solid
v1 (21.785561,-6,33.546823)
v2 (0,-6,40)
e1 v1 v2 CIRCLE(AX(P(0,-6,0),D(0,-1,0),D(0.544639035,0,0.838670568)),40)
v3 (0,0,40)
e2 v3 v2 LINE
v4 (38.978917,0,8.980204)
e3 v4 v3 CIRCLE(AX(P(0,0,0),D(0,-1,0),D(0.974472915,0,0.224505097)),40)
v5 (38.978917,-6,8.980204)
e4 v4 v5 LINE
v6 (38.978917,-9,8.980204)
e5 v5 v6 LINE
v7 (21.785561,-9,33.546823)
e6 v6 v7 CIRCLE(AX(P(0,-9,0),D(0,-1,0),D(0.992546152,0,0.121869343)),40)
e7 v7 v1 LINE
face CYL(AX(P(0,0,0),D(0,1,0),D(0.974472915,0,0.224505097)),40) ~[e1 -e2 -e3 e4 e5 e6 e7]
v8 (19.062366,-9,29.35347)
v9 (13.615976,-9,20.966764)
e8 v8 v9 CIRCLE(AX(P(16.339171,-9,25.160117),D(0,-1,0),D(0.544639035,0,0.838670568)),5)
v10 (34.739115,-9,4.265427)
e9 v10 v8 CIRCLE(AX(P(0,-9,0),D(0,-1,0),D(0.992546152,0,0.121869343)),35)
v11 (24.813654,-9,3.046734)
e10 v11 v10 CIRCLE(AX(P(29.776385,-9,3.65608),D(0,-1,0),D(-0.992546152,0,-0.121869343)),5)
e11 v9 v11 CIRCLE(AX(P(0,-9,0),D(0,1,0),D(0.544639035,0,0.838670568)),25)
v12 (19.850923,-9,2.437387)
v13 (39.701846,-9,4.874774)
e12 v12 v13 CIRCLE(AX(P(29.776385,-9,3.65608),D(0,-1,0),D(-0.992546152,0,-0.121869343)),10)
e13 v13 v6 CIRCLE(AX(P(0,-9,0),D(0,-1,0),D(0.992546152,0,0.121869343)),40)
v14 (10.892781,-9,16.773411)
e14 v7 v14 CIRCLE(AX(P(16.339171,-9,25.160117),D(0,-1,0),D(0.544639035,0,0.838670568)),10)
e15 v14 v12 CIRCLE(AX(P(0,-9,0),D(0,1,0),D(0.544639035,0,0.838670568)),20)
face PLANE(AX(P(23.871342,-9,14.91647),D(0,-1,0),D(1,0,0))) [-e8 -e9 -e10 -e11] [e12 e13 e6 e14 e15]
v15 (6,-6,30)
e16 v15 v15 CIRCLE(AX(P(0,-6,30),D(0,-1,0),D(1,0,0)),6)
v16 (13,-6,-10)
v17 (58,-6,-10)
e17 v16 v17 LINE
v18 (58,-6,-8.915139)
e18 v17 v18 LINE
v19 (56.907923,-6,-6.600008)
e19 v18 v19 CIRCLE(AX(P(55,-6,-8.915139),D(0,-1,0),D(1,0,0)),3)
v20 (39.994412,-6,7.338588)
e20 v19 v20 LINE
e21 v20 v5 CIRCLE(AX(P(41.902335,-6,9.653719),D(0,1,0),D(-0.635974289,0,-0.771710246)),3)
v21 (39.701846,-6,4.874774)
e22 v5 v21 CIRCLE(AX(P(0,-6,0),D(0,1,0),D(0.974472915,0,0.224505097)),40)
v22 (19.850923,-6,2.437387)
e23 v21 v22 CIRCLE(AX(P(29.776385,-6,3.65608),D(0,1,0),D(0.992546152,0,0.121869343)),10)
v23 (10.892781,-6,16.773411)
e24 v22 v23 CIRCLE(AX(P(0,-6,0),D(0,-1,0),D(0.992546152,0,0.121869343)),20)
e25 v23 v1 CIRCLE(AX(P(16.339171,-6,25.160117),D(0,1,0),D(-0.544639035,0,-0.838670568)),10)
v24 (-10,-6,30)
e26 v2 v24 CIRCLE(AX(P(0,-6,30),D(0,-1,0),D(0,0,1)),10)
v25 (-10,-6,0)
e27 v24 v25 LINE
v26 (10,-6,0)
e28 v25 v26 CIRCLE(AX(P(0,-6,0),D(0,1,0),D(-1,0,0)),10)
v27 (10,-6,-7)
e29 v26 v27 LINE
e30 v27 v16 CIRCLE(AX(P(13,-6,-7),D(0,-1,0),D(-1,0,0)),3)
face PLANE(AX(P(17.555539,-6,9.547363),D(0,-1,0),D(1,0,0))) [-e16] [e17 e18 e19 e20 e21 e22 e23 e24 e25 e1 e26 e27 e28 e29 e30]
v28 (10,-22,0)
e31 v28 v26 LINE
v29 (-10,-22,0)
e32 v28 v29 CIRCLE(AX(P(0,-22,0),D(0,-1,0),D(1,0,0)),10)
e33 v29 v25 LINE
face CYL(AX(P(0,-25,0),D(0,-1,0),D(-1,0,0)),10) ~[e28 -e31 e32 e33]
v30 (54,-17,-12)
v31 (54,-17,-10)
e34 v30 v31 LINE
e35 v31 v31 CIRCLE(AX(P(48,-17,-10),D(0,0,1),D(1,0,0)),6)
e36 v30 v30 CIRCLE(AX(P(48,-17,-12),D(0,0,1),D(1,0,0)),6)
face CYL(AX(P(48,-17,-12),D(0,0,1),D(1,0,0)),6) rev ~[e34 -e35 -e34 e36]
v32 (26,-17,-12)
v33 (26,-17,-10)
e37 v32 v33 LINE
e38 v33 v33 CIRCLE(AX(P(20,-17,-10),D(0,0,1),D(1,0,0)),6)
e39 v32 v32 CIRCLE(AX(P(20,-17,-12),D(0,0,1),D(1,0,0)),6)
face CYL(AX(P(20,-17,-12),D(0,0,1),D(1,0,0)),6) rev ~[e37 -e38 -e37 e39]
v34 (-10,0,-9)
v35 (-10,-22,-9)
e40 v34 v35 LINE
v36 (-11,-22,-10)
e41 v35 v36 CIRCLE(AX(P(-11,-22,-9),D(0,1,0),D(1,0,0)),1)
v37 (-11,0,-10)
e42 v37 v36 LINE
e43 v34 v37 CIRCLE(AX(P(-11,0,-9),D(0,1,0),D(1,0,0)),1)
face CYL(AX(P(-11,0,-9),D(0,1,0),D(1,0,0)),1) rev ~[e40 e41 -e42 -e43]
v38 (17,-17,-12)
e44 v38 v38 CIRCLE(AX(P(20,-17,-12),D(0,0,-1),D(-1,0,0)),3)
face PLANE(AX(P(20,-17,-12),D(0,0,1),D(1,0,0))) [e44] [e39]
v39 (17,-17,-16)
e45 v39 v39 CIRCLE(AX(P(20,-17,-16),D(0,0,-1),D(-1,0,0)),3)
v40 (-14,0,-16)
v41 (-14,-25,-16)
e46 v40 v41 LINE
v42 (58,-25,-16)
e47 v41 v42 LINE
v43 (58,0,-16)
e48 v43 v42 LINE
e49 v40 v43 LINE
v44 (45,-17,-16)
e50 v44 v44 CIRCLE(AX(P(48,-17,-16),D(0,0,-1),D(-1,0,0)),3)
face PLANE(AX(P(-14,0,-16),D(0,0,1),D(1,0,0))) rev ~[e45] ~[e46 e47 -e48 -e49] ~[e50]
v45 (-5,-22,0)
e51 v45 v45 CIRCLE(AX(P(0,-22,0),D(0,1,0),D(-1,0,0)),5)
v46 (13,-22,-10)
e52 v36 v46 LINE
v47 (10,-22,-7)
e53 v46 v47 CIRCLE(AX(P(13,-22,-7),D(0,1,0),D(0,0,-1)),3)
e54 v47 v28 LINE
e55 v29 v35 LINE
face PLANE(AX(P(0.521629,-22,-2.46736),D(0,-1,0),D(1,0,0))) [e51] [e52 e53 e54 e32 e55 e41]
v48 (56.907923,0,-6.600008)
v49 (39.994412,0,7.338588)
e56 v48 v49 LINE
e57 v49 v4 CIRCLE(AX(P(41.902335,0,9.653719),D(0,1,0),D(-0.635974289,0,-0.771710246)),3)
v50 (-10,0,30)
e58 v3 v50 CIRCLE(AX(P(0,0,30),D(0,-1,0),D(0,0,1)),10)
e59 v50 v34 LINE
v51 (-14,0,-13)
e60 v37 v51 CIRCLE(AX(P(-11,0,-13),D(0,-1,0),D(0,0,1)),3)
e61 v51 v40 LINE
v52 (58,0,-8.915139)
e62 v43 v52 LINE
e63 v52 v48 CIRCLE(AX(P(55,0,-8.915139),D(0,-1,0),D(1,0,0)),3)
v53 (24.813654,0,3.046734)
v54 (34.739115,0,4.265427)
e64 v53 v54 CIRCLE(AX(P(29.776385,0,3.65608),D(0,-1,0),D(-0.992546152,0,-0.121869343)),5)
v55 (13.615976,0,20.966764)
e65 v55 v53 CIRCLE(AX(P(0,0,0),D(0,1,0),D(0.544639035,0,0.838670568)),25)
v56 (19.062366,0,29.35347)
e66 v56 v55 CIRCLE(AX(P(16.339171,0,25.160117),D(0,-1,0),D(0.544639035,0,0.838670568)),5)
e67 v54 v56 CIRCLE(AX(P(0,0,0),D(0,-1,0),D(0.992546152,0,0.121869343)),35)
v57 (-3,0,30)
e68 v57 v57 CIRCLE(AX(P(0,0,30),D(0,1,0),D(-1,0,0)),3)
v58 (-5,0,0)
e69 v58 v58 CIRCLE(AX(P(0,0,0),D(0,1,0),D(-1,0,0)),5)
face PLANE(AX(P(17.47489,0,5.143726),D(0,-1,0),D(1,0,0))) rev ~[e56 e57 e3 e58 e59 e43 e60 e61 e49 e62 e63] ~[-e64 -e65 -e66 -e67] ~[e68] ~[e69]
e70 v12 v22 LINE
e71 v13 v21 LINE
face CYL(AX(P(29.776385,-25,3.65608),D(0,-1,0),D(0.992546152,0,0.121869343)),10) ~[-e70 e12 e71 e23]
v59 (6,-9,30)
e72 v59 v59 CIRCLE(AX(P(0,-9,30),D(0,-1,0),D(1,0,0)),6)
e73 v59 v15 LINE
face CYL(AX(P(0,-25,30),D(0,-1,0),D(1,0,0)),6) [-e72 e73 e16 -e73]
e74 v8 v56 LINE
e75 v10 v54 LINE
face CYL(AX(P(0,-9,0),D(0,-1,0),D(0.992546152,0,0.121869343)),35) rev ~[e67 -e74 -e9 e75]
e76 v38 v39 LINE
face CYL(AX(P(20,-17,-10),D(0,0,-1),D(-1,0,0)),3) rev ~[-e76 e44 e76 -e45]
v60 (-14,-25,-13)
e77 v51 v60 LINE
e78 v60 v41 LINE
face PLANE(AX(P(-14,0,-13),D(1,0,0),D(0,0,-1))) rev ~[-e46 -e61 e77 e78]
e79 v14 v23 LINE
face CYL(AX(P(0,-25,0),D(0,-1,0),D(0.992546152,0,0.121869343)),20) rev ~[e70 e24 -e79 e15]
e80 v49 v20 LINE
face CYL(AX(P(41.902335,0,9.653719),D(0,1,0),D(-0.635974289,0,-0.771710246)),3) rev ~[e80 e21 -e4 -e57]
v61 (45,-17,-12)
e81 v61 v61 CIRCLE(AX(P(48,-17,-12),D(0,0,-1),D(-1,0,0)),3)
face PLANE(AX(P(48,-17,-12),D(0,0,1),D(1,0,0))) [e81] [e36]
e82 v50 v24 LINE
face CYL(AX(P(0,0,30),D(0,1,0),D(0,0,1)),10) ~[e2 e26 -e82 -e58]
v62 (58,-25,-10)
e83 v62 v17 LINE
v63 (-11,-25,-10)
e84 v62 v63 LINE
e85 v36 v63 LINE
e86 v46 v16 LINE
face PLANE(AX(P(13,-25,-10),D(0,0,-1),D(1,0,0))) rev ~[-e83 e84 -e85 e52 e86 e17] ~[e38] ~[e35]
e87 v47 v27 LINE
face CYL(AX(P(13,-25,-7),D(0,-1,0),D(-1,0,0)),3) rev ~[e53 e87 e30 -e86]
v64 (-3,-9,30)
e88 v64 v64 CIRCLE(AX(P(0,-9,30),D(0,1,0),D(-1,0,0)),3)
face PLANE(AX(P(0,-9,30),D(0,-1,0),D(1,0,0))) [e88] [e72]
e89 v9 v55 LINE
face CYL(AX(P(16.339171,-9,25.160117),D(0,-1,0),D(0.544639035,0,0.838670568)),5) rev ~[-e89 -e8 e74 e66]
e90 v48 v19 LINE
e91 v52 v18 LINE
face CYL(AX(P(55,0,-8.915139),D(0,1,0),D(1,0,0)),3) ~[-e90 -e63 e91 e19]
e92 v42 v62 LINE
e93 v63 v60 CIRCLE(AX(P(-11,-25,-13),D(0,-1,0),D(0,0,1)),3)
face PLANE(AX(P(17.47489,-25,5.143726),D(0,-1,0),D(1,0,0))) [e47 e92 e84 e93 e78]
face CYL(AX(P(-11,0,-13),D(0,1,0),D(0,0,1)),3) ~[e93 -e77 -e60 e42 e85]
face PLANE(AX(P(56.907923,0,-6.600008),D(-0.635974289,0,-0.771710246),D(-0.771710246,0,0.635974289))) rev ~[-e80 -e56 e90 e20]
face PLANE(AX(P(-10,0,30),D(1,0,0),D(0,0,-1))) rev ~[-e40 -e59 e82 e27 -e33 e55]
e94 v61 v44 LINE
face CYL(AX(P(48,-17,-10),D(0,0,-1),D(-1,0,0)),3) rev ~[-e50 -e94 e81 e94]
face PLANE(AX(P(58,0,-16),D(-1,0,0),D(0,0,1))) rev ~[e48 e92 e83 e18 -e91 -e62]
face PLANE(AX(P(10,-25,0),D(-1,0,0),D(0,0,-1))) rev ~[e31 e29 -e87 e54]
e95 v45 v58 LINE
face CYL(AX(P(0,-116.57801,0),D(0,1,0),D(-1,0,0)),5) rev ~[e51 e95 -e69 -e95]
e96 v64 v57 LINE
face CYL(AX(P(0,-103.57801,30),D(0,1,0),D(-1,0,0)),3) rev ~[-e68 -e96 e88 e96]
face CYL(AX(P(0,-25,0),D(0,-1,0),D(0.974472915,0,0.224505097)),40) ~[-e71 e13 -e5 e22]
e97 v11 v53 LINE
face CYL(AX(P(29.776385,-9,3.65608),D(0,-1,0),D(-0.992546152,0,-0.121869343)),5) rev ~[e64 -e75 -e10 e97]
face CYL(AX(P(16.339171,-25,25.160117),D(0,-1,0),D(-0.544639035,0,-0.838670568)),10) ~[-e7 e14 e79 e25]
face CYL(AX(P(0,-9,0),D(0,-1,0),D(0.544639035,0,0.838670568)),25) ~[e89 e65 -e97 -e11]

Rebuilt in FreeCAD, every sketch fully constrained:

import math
import FreeCAD as App
import Part
import Sketcher

V = App.Vector
Q = App.Units.Quantity

doc = App.newDocument("Part")
body = doc.addObject("PartDesign::Body", "Body")

# Sketch on XZ plane
sketch1 = body.newObject("Sketcher::SketchObject", "Sketch")
sketch1.AttachmentSupport = (doc.getObject("XZ_Plane"), [""])
sketch1.MapMode = "FlatFace"
sketch1.addGeometry([
    Part.LineSegment(V(-14, -16, 0), V(58, -16, 0)),  # 0
    Part.LineSegment(V(58, -16, 0), V(58, -8.9, 0)),  # 1
    Part.ArcOfCircle(Part.Circle(V(55, -8.9, 0), V(0, 0, 1), 3), math.radians(0), math.radians(51)),  # 2
    Part.LineSegment(V(56.9, -6.6, 0), V(40, 7.3, 0)),  # 3
    Part.ArcOfCircle(Part.Circle(V(41.9, 9.7, 0), V(0, 0, 1), 3), math.radians(-167), math.radians(-129)),  # 4
    Part.ArcOfCircle(Part.Circle(V(0, 0, 0), V(0, 0, 1), 40), math.radians(13), math.radians(90)),  # 5
    Part.ArcOfCircle(Part.Circle(V(0, 30, 0), V(0, 0, 1), 10), math.radians(90), math.radians(180)),  # 6
    Part.LineSegment(V(-10, 30, 0), V(-10, -9, 0)),  # 7
    Part.ArcOfCircle(Part.Circle(V(-11, -9, 0), V(0, 0, 1), 1), math.radians(-90), math.radians(0)),  # 8
    Part.ArcOfCircle(Part.Circle(V(-11, -13, 0), V(0, 0, 1), 3), math.radians(90), math.radians(180)),  # 9
    Part.LineSegment(V(-14, -13, 0), V(-14, -16, 0)),  # 10
], False)
sketch1.addConstraint([
    Sketcher.Constraint("Coincident", 0, 2, 1, 1),
    Sketcher.Constraint("Tangent", 1, 2, 2, 1),
    Sketcher.Constraint("Tangent", 2, 2, 3, 1),
    Sketcher.Constraint("Tangent", 3, 2, 4, 2),
    Sketcher.Constraint("Tangent", 4, 1, 5, 1),
    Sketcher.Constraint("Tangent", 5, 2, 6, 1),
    Sketcher.Constraint("Tangent", 6, 2, 7, 1),
    Sketcher.Constraint("Tangent", 7, 2, 8, 2),
    Sketcher.Constraint("Tangent", 8, 1, 9, 1),
    Sketcher.Constraint("Tangent", 9, 2, 10, 1),
    Sketcher.Constraint("Coincident", 10, 2, 0, 1),
    Sketcher.Constraint("Horizontal", 0),
    Sketcher.Constraint("Vertical", 1),
    Sketcher.Constraint("Vertical", 7),
    Sketcher.Constraint("Vertical", 10),
    Sketcher.Constraint("Coincident", 5, 3, -1, 1),
    Sketcher.Constraint("Equal", 2, 4),
    Sketcher.Constraint("Equal", 4, 9),
    Sketcher.Constraint("PointOnObject", 6, 3, -2),
    Sketcher.Constraint("Vertical", 8, 3, 9, 3),
    Sketcher.Constraint("Radius", 2, Q("3 mm")),
    Sketcher.Constraint("Radius", 5, Q("40 mm")),
    Sketcher.Constraint("Radius", 6, Q("10 mm")),
    Sketcher.Constraint("Radius", 8, Q("1 mm")),
    Sketcher.Constraint("DistanceX", 0, 1, 0, 2, Q("72 mm")),
    Sketcher.Constraint("DistanceY", 7, 2, 7, 1, Q("39 mm")),
    Sketcher.Constraint("DistanceY", 10, 2, 10, 1, Q("3 mm")),
    Sketcher.Constraint("DistanceY", 1, 1, 1, 2, Q("7.084861 mm")),
    Sketcher.Constraint("Distance", 3, Q("21.916918 mm")),
])
pad1 = body.newObject("PartDesign::Pad", "Pad")
pad1.Profile = sketch1
pad1.Length = 25

# Sketch on XZ plane
sketch2 = body.newObject("Sketcher::SketchObject", "Sketch001")
sketch2.AttachmentSupport = (doc.getObject("XZ_Plane"), [""])
sketch2.MapMode = "FlatFace"
sketch2.AttachmentOffset = App.Placement(V(0, 0, 25), App.Rotation())
sketch2.addGeometry([
    Part.ArcOfCircle(Part.Circle(V(0, 0, 0), V(0, 0, 1), 10), math.radians(0), math.radians(180)),  # 0
    Part.LineSegment(V(10, 0, 0), V(10, -7, 0)),  # 1
    Part.ArcOfCircle(Part.Circle(V(13, -7, 0), V(0, 0, 1), 3), math.radians(180), math.radians(270)),  # 2
    Part.LineSegment(V(13, -10, 0), V(58, -10, 0)),  # 3
    Part.LineSegment(V(58, -10, 0), V(58, -8.9, 0)),  # 4
    Part.ArcOfCircle(Part.Circle(V(55, -8.9, 0), V(0, 0, 1), 3), math.radians(0), math.radians(51)),  # 5
    Part.LineSegment(V(56.9, -6.6, 0), V(40, 7.3, 0)),  # 6
    Part.ArcOfCircle(Part.Circle(V(41.9, 9.7, 0), V(0, 0, 1), 3), math.radians(-167), math.radians(-129)),  # 7
    Part.ArcOfCircle(Part.Circle(V(0, 0, 0), V(0, 0, 1), 40), math.radians(7), math.radians(12.97)),  # 8
    Part.ArcOfCircle(Part.Circle(V(29.8, 3.7, 0), V(0, 0, 1), 10), math.radians(-173), math.radians(7)),  # 9
    Part.ArcOfCircle(Part.Circle(V(0, 0, 0), V(0, 0, 1), 20), math.radians(7), math.radians(57)),  # 10
    Part.ArcOfCircle(Part.Circle(V(16.3, 25.2, 0), V(0, 0, 1), 10), math.radians(57), math.radians(237)),  # 11
    Part.ArcOfCircle(Part.Circle(V(0, 0, 0), V(0, 0, 1), 40), math.radians(57), math.radians(90)),  # 12
    Part.ArcOfCircle(Part.Circle(V(0, 30, 0), V(0, 0, 1), 10), math.radians(90), math.radians(180)),  # 13
    Part.LineSegment(V(-10, 30, 0), V(-10, 0, 0)),  # 14
    Part.Circle(V(0, 30, 0), V(0, 0, 1), 6),  # 15
], False)
sketch2.addConstraint([
    Sketcher.Constraint("Tangent", 0, 1, 1, 1),
    Sketcher.Constraint("Tangent", 1, 2, 2, 1),
    Sketcher.Constraint("Tangent", 2, 2, 3, 1),
    Sketcher.Constraint("Coincident", 3, 2, 4, 1),
    Sketcher.Constraint("Tangent", 4, 2, 5, 1),
    Sketcher.Constraint("Tangent", 5, 2, 6, 1),
    Sketcher.Constraint("Tangent", 6, 2, 7, 2),
    Sketcher.Constraint("Tangent", 7, 1, 8, 2),
    Sketcher.Constraint("Tangent", 8, 1, 9, 2),
    Sketcher.Constraint("Tangent", 9, 1, 10, 1),
    Sketcher.Constraint("Tangent", 10, 2, 11, 2),
    Sketcher.Constraint("Tangent", 11, 1, 12, 1),
    Sketcher.Constraint("Tangent", 12, 2, 13, 1),
    Sketcher.Constraint("Tangent", 13, 2, 14, 1),
    Sketcher.Constraint("Tangent", 14, 2, 0, 2),
    Sketcher.Constraint("Vertical", 1),
    Sketcher.Constraint("Horizontal", 3),
    Sketcher.Constraint("Vertical", 4),
    Sketcher.Constraint("Vertical", 14),
    Sketcher.Constraint("Coincident", 0, 3, -1, 1),
    Sketcher.Constraint("Coincident", 8, 3, -1, 1),
    Sketcher.Constraint("Coincident", 10, 3, -1, 1),
    Sketcher.Constraint("Coincident", 12, 3, -1, 1),
    Sketcher.Constraint("Coincident", 15, 3, 13, 3),
    Sketcher.Constraint("Equal", 2, 5),
    Sketcher.Constraint("Equal", 5, 7),
    Sketcher.Constraint("Equal", 0, 9),
    Sketcher.Constraint("Equal", 9, 11),
    Sketcher.Constraint("Equal", 11, 13),
    Sketcher.Constraint("Diameter", 15, Q("12 mm")),
    Sketcher.Constraint("Radius", 0, Q("10 mm")),
    Sketcher.Constraint("Radius", 2, Q("3 mm")),
    Sketcher.Constraint("Radius", 8, Q("40 mm")),
    Sketcher.Constraint("DistanceX", 3, 1, 3, 2, Q("45 mm")),
    Sketcher.Constraint("DistanceY", 1, 2, 1, 1, Q("7 mm")),
    Sketcher.Constraint("DistanceY", 4, 1, 4, 2, Q("1.084861 mm")),
    Sketcher.Constraint("Distance", 6, Q("21.916918 mm")),
    Sketcher.Constraint("DistanceY", -1, 1, 9, 3, Q("3.65608 mm")),
    Sketcher.Constraint("DistanceX", -1, 1, 11, 3, Q("16.339171 mm")),
])
pocket1 = body.newObject("PartDesign::Pocket", "Pocket")
pocket1.Profile = sketch2
pocket1.Length = 19

# Sketch on XZ plane
sketch3 = body.newObject("Sketcher::SketchObject", "Sketch002")
sketch3.AttachmentSupport = (doc.getObject("XZ_Plane"), [""])
sketch3.MapMode = "FlatFace"
sketch3.AttachmentOffset = App.Placement(V(0, 0, 25), App.Rotation())
sketch3.addGeometry([
    Part.Circle(V(0, 30, 0), V(0, 0, 1), 6),  # 0
    Part.ArcOfCircle(Part.Circle(V(0, 0, 0), V(0, 0, 1), 40), math.radians(7), math.radians(57)),  # 1
    Part.ArcOfCircle(Part.Circle(V(16, 25, 0), V(0, 0, 1), 10), math.radians(57), math.radians(237)),  # 2
    Part.ArcOfCircle(Part.Circle(V(0, 0, 0), V(0, 0, 1), 20), math.radians(7), math.radians(57)),  # 3
    Part.ArcOfCircle(Part.Circle(V(30, 4, 0), V(0, 0, 1), 10), math.radians(-173), math.radians(7)),  # 4
], False)
sketch3.addConstraint([
    Sketcher.Constraint("Tangent", 1, 2, 2, 1),
    Sketcher.Constraint("Tangent", 2, 2, 3, 2),
    Sketcher.Constraint("Tangent", 3, 1, 4, 1),
    Sketcher.Constraint("Tangent", 4, 2, 1, 1),
    Sketcher.Constraint("Coincident", 1, 3, -1, 1),
    Sketcher.Constraint("Coincident", 3, 3, -1, 1),
    Sketcher.Constraint("PointOnObject", 0, 3, -2),
    Sketcher.Constraint("Diameter", 0, Q("12 mm")),
    Sketcher.Constraint("Radius", 1, Q("40 mm")),
    Sketcher.Constraint("Radius", 2, Q("10 mm")),
    Sketcher.Constraint("DistanceY", -1, 1, 0, 3, Q("30 mm")),
    Sketcher.Constraint("DistanceX", -1, 1, 2, 3, Q("16.339171 mm")),
    Sketcher.Constraint("DistanceY", -1, 1, 4, 3, Q("3.65608 mm")),
])
pocket2 = body.newObject("PartDesign::Pocket", "Pocket001")
pocket2.Profile = sketch3
pocket2.Length = 16

# Sketch on XZ plane
sketch4 = body.newObject("Sketcher::SketchObject", "Sketch003")
sketch4.AttachmentSupport = (doc.getObject("XZ_Plane"), [""])
sketch4.MapMode = "FlatFace"
sketch4.AttachmentOffset = App.Placement(V(0, 0, 25), App.Rotation())
sketch4.addGeometry([
    Part.LineSegment(V(-11, -10, 0), V(13, -10, 0)),  # 0
    Part.ArcOfCircle(Part.Circle(V(13, -7, 0), V(0, 0, 1), 3), math.radians(180), math.radians(270)),  # 1
    Part.LineSegment(V(10, -7, 0), V(10, 0, 0)),  # 2
    Part.ArcOfCircle(Part.Circle(V(0, 0, 0), V(0, 0, 1), 10), math.radians(0), math.radians(180)),  # 3
    Part.LineSegment(V(-10, 0, 0), V(-10, -9, 0)),  # 4
    Part.ArcOfCircle(Part.Circle(V(-11, -9, 0), V(0, 0, 1), 1), math.radians(-90), math.radians(0)),  # 5
], False)
sketch4.addConstraint([
    Sketcher.Constraint("Tangent", 0, 2, 1, 2),
    Sketcher.Constraint("Tangent", 1, 1, 2, 1),
    Sketcher.Constraint("Tangent", 2, 2, 3, 1),
    Sketcher.Constraint("Tangent", 3, 2, 4, 1),
    Sketcher.Constraint("Tangent", 4, 2, 5, 2),
    Sketcher.Constraint("Tangent", 5, 1, 0, 1),
    Sketcher.Constraint("Horizontal", 0),
    Sketcher.Constraint("Vertical", 2),
    Sketcher.Constraint("Vertical", 4),
    Sketcher.Constraint("Coincident", 3, 3, -1, 1),
    Sketcher.Constraint("Radius", 1, Q("3 mm")),
    Sketcher.Constraint("Radius", 3, Q("10 mm")),
    Sketcher.Constraint("Radius", 5, Q("1 mm")),
    Sketcher.Constraint("DistanceY", 2, 1, 2, 2, Q("7 mm")),
])
pocket3 = body.newObject("PartDesign::Pocket", "Pocket002")
pocket3.Profile = sketch4
pocket3.Length = 3

# Sketch on XZ plane
sketch5 = body.newObject("Sketcher::SketchObject", "Sketch004")
sketch5.AttachmentSupport = (doc.getObject("XZ_Plane"), [""])
sketch5.MapMode = "FlatFace"
sketch5.AttachmentOffset = App.Placement(V(0, 0, 22), App.Rotation())
sketch5.addGeometry(Part.Circle(V(0, 0, 0), V(0, 0, 1), 5), False)
sketch5.addConstraint([
    Sketcher.Constraint("Coincident", 0, 3, -1, 1),
    Sketcher.Constraint("Diameter", 0, Q("10 mm")),
])
doc.recompute()
hole = body.newObject("PartDesign::Hole", "Hole")
hole.Profile = sketch5
hole.ThreadType = "None"
hole.Diameter = 10
hole.DepthType = "ThroughAll"

# Sketch on XZ plane
sketch6 = body.newObject("Sketcher::SketchObject", "Sketch005")
sketch6.AttachmentSupport = (doc.getObject("XZ_Plane"), [""])
sketch6.MapMode = "FlatFace"
sketch6.AttachmentOffset = App.Placement(V(0, 0, 9), App.Rotation())
sketch6.addGeometry(Part.Circle(V(0, 30, 0), V(0, 0, 1), 3), False)
sketch6.addConstraint([
    Sketcher.Constraint("PointOnObject", 0, 3, -2),
    Sketcher.Constraint("Diameter", 0, Q("6 mm")),
    Sketcher.Constraint("DistanceY", -1, 1, 0, 3, Q("30 mm")),
])
doc.recompute()
hole2 = body.newObject("PartDesign::Hole", "Hole001")
hole2.Profile = sketch6
hole2.ThreadType = "None"
hole2.Diameter = 6
hole2.DepthType = "ThroughAll"

# Sketch on XZ plane
sketch7 = body.newObject("Sketcher::SketchObject", "Sketch006")
sketch7.AttachmentSupport = (doc.getObject("XZ_Plane"), [""])
sketch7.MapMode = "FlatFace"
sketch7.AttachmentOffset = App.Placement(V(0, 0, 9), App.Rotation())
sketch7.addGeometry([
    Part.ArcOfCircle(Part.Circle(V(0, 0, 0), V(0, 0, 1), 35), math.radians(7), math.radians(57)),
    Part.ArcOfCircle(Part.Circle(V(16, 25, 0), V(0, 0, 1), 5), math.radians(57), math.radians(237)),
    Part.ArcOfCircle(Part.Circle(V(0, 0, 0), V(0, 0, 1), 25), math.radians(7), math.radians(57)),
    Part.ArcOfCircle(Part.Circle(V(30, 4, 0), V(0, 0, 1), 5), math.radians(-173), math.radians(7)),
], False)
sketch7.addConstraint([
    Sketcher.Constraint("Tangent", 0, 2, 1, 1),
    Sketcher.Constraint("Tangent", 1, 2, 2, 2),
    Sketcher.Constraint("Tangent", 2, 1, 3, 1),
    Sketcher.Constraint("Tangent", 3, 2, 0, 1),
    Sketcher.Constraint("Coincident", 0, 3, -1, 1),
    Sketcher.Constraint("Coincident", 2, 3, -1, 1),
    Sketcher.Constraint("Radius", 0, Q("35 mm")),
    Sketcher.Constraint("Radius", 1, Q("5 mm")),
    Sketcher.Constraint("DistanceX", -1, 1, 1, 3, Q("16.339171 mm")),
    Sketcher.Constraint("DistanceY", -1, 1, 3, 3, Q("3.65608 mm")),
])
pocket4 = body.newObject("PartDesign::Pocket", "Pocket003")
pocket4.Profile = sketch7
pocket4.Length = 9

# Sketch on XY plane
sketch8 = body.newObject("Sketcher::SketchObject", "Sketch007")
sketch8.AttachmentSupport = (doc.getObject("XY_Plane"), [""])
sketch8.MapMode = "FlatFace"
sketch8.AttachmentOffset = App.Placement(V(0, 0, -10), App.Rotation())
sketch8.addGeometry([
    Part.Circle(V(20, -17, 0), V(0, 0, 1), 3),
    Part.Circle(V(48, -17, 0), V(0, 0, 1), 3),
], False)
sketch8.addConstraint([
    Sketcher.Constraint("Equal", 0, 1),
    Sketcher.Constraint("Horizontal", 0, 3, 1, 3),
    Sketcher.Constraint("Diameter", 0, Q("6 mm")),
    Sketcher.Constraint("DistanceX", -1, 1, 0, 3, Q("20 mm")),
    Sketcher.Constraint("DistanceY", 0, 3, -1, 1, Q("17 mm")),
    Sketcher.Constraint("DistanceX", -1, 1, 1, 3, Q("48 mm")),
])
doc.recompute()
hole3 = body.newObject("PartDesign::Hole", "Hole002")
hole3.Profile = sketch8
hole3.ThreadType = "None"
hole3.Diameter = 6
hole3.DepthType = "ThroughAll"
hole3.HoleCutType = "Counterbore"
hole3.HoleCutDiameter = 12
hole3.HoleCutDepth = 2

doc.recompute()
